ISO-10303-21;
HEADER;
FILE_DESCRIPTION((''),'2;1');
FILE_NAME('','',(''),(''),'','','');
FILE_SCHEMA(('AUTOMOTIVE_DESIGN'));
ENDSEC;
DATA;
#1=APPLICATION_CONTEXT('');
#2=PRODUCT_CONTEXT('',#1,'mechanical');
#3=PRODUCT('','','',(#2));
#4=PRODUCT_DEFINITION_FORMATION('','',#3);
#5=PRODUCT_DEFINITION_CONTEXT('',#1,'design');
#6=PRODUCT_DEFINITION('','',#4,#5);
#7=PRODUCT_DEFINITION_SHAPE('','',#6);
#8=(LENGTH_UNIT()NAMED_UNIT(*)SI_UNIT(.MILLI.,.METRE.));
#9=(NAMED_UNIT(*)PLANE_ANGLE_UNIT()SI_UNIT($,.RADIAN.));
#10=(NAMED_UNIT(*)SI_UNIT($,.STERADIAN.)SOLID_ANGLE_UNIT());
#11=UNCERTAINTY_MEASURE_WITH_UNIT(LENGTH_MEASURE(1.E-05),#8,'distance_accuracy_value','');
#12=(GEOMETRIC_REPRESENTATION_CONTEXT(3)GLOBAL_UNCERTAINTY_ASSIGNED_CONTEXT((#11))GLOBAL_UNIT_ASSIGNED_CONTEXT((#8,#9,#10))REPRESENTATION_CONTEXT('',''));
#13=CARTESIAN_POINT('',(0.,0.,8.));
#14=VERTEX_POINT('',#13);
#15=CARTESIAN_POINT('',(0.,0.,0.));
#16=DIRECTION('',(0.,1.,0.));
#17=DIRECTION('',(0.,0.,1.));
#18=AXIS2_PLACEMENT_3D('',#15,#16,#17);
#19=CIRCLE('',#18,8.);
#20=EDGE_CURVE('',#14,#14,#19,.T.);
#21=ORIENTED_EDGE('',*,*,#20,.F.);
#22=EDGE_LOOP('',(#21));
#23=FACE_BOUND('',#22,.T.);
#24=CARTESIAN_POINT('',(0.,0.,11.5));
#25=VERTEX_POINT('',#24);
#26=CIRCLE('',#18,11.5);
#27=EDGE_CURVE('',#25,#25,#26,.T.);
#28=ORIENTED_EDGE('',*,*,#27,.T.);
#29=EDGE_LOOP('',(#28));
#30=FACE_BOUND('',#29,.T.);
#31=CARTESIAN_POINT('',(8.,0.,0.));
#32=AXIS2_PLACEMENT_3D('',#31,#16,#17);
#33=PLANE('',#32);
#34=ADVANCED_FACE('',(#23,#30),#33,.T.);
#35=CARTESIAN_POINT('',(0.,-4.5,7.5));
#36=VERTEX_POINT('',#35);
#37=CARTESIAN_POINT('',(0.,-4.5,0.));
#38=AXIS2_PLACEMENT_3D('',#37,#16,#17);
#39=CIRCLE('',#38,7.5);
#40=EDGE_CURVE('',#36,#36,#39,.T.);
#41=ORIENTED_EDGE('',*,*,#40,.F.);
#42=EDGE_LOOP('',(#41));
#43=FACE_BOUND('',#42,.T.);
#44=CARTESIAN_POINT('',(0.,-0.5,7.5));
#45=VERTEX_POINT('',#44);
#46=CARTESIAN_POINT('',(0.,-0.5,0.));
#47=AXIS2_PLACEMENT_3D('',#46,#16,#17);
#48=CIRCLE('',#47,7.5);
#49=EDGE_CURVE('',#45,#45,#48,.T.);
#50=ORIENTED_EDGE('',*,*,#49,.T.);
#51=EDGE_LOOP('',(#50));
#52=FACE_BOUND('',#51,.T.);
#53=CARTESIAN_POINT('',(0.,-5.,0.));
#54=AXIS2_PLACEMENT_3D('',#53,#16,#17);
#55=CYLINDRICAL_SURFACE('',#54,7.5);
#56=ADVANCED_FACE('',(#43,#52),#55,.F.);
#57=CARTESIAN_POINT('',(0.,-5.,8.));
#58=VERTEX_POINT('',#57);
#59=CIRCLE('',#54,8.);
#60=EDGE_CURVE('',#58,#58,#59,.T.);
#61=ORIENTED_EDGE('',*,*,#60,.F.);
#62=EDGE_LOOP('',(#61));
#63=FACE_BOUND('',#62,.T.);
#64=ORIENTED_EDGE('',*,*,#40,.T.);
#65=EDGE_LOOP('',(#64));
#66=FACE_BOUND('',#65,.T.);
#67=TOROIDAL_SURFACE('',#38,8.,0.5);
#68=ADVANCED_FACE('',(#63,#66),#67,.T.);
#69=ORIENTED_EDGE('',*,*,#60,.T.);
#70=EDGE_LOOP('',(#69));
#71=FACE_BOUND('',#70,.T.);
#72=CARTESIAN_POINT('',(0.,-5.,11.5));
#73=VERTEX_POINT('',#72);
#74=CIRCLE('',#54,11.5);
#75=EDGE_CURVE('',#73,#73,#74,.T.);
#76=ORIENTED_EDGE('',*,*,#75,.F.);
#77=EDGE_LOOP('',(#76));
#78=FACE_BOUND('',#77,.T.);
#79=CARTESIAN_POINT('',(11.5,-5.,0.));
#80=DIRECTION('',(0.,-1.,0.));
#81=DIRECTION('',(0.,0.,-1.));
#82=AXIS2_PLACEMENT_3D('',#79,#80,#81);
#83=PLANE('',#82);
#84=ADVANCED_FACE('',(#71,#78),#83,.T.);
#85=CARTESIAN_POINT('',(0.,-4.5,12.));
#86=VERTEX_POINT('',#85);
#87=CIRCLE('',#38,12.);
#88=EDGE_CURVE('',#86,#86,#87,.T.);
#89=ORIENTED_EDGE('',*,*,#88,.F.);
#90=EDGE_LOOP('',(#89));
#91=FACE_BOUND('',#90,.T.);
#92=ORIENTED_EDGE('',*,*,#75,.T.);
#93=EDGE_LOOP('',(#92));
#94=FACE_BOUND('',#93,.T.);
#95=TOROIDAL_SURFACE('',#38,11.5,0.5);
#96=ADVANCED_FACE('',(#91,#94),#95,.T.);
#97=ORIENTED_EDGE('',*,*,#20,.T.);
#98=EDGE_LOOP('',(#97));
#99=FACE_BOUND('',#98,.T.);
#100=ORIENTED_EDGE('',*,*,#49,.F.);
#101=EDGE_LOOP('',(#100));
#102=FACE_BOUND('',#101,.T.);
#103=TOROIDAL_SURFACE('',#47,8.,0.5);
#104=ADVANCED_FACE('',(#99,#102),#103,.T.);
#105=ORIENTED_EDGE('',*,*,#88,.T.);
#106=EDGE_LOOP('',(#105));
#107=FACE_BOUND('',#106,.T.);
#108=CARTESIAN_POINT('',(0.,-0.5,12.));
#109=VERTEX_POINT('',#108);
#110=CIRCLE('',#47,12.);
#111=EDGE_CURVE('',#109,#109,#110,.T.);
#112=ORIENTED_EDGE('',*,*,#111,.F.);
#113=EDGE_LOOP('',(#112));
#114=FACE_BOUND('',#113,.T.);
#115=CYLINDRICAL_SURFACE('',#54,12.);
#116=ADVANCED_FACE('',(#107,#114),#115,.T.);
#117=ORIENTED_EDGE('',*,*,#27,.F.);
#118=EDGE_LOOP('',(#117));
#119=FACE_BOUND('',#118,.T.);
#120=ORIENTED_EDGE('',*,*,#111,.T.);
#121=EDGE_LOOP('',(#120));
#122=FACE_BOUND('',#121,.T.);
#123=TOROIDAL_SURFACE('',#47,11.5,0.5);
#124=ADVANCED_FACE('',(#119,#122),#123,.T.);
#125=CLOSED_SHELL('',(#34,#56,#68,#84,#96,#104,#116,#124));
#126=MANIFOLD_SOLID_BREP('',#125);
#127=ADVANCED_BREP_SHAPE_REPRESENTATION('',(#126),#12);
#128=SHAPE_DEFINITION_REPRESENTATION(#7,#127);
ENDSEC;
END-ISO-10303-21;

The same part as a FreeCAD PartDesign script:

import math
import FreeCAD as App
import Part
import Sketcher

V = App.Vector
Q = App.Units.Quantity

doc = App.newDocument("Part")
body = doc.addObject("PartDesign::Body", "Body")

# Sketch on XY plane
sketch1 = doc.addObject("Sketcher::SketchObject", "Sketch")
body.addObject(sketch1)
sketch1.AttachmentSupport = (doc.XY_Plane, [""])
sketch1.MapMode = "FlatFace"
sketch1.addGeometry([
    Part.LineSegment(V(12, -0.5, 0), V(12, -4.5, 0)),  # 0
    Part.ArcOfCircle(Part.Circle(V(11.5, -4.5, 0), V(0, 0, 1), 0.5), math.radians(-90), math.radians(0)),  # 1
    Part.LineSegment(V(11.5, -5, 0), V(8, -5, 0)),  # 2
    Part.ArcOfCircle(Part.Circle(V(8, -4.5, 0), V(0, 0, 1), 0.5), math.radians(180), math.radians(270)),  # 3
    Part.LineSegment(V(7.5, -4.5, 0), V(7.5, -0.5, 0)),  # 4
    Part.ArcOfCircle(Part.Circle(V(8, -0.5, 0), V(0, 0, 1), 0.5), math.radians(90), math.radians(180)),  # 5
    Part.LineSegment(V(8, 0, 0), V(11.5, 0, 0)),  # 6
    Part.ArcOfCircle(Part.Circle(V(11.5, -0.5, 0), V(0, 0, 1), 0.5), math.radians(0), math.radians(90)),  # 7
], False)
sketch1.addConstraint([
    Sketcher.Constraint("Tangent", 0, 2, 1, 2),
    Sketcher.Constraint("Tangent", 1, 1, 2, 1),
    Sketcher.Constraint("Tangent", 2, 2, 3, 2),
    Sketcher.Constraint("Tangent", 3, 1, 4, 1),
    Sketcher.Constraint("Tangent", 4, 2, 5, 2),
    Sketcher.Constraint("Tangent", 5, 1, 6, 1),
    Sketcher.Constraint("Tangent", 6, 2, 7, 2),
    Sketcher.Constraint("Tangent", 7, 1, 0, 1),
    Sketcher.Constraint("Vertical", 0),
    Sketcher.Constraint("Horizontal", 2),
    Sketcher.Constraint("Vertical", 4),
    Sketcher.Constraint("Horizontal", 6),
    Sketcher.Constraint("Equal", 1, 3),
    Sketcher.Constraint("Equal", 3, 5),
    Sketcher.Constraint("Equal", 5, 7),
    Sketcher.Constraint("PointOnObject", 5, 1, -1),
    Sketcher.Constraint("Radius", 1, Q("0.5 mm")),
    Sketcher.Constraint("DistanceY", 0, 2, 0, 1, Q("4 mm")),
    Sketcher.Constraint("DistanceX", 2, 2, 2, 1, Q("3.5 mm")),
    Sketcher.Constraint("DistanceX", -1, 1, 3, 3, Q("8 mm")),
])
revolution = doc.addObject("PartDesign::Revolution", "Revolution")
body.addObject(revolution)
revolution.Profile = sketch1
revolution.ReferenceAxis = (sketch1, ["V_Axis"])
revolution.Angle = 360

doc.recompute()
